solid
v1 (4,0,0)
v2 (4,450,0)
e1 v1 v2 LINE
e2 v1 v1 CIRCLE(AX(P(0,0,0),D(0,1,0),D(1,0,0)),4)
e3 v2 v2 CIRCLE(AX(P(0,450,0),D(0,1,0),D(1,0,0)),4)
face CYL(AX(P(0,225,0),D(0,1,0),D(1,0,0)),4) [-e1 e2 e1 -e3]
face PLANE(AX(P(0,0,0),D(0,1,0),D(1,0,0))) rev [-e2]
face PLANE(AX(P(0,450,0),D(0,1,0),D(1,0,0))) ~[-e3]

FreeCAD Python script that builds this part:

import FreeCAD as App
import Part
import Sketcher

V = App.Vector
Q = App.Units.Quantity

doc = App.newDocument("Part")
params = doc.addObject("Spreadsheet::Sheet", "Params")
for row, (alias, value) in enumerate([
    ("sketch1_width", "4 mm"),
    ("sketch1_height", "450 mm"),
    ("revolution_angle", "360 deg"),
], start=1):
    params.set(f"A{row}", alias)
    params.set(f"B{row}", "=" + value)
    params.setAlias(f"B{row}", alias)

body = doc.addObject("PartDesign::Body", "Body")

# Sketch on XY plane
sketch1 = body.newObject("Sketcher::SketchObject", "Sketch")
sketch1.AttachmentSupport = (doc.getObject("XY_Plane"), [""])
sketch1.MapMode = "FlatFace"
sketch1.addGeometry([
    Part.LineSegment(V(0, 450, 0), V(0, 0, 0)),
    Part.LineSegment(V(0, 0, 0), V(4, 0, 0)),
    Part.LineSegment(V(4, 0, 0), V(4, 450, 0)),
    Part.LineSegment(V(4, 450, 0), V(0, 450, 0)),
], False)
sketch1.addConstraint([
    Sketcher.Constraint("Coincident", 0, 2, 1, 1),
    Sketcher.Constraint("Coincident", 1, 2, 2, 1),
    Sketcher.Constraint("Coincident", 2, 2, 3, 1),
    Sketcher.Constraint("Coincident", 3, 2, 0, 1),
    Sketcher.Constraint("Vertical", 0),
    Sketcher.Constraint("Horizontal", 1),
    Sketcher.Constraint("Vertical", 2),
    Sketcher.Constraint("Horizontal", 3),
    Sketcher.Constraint("Coincident", 0, 2, -1, 1),
    Sketcher.Constraint("DistanceX", 1, 1, 1, 2, Q("4 mm")),
    Sketcher.Constraint("DistanceY", 0, 2, 0, 1, Q("450 mm")),
])
sketch1.setExpression("Constraints[9]", "Params.sketch1_width")
sketch1.setExpression("Constraints[10]", "Params.sketch1_height")
revolution = body.newObject("PartDesign::Revolution", "Revolution")
revolution.Profile = sketch1
revolution.ReferenceAxis = (sketch1, ["V_Axis"])
revolution.setExpression("Angle", "Params.revolution_angle")

doc.recompute()
